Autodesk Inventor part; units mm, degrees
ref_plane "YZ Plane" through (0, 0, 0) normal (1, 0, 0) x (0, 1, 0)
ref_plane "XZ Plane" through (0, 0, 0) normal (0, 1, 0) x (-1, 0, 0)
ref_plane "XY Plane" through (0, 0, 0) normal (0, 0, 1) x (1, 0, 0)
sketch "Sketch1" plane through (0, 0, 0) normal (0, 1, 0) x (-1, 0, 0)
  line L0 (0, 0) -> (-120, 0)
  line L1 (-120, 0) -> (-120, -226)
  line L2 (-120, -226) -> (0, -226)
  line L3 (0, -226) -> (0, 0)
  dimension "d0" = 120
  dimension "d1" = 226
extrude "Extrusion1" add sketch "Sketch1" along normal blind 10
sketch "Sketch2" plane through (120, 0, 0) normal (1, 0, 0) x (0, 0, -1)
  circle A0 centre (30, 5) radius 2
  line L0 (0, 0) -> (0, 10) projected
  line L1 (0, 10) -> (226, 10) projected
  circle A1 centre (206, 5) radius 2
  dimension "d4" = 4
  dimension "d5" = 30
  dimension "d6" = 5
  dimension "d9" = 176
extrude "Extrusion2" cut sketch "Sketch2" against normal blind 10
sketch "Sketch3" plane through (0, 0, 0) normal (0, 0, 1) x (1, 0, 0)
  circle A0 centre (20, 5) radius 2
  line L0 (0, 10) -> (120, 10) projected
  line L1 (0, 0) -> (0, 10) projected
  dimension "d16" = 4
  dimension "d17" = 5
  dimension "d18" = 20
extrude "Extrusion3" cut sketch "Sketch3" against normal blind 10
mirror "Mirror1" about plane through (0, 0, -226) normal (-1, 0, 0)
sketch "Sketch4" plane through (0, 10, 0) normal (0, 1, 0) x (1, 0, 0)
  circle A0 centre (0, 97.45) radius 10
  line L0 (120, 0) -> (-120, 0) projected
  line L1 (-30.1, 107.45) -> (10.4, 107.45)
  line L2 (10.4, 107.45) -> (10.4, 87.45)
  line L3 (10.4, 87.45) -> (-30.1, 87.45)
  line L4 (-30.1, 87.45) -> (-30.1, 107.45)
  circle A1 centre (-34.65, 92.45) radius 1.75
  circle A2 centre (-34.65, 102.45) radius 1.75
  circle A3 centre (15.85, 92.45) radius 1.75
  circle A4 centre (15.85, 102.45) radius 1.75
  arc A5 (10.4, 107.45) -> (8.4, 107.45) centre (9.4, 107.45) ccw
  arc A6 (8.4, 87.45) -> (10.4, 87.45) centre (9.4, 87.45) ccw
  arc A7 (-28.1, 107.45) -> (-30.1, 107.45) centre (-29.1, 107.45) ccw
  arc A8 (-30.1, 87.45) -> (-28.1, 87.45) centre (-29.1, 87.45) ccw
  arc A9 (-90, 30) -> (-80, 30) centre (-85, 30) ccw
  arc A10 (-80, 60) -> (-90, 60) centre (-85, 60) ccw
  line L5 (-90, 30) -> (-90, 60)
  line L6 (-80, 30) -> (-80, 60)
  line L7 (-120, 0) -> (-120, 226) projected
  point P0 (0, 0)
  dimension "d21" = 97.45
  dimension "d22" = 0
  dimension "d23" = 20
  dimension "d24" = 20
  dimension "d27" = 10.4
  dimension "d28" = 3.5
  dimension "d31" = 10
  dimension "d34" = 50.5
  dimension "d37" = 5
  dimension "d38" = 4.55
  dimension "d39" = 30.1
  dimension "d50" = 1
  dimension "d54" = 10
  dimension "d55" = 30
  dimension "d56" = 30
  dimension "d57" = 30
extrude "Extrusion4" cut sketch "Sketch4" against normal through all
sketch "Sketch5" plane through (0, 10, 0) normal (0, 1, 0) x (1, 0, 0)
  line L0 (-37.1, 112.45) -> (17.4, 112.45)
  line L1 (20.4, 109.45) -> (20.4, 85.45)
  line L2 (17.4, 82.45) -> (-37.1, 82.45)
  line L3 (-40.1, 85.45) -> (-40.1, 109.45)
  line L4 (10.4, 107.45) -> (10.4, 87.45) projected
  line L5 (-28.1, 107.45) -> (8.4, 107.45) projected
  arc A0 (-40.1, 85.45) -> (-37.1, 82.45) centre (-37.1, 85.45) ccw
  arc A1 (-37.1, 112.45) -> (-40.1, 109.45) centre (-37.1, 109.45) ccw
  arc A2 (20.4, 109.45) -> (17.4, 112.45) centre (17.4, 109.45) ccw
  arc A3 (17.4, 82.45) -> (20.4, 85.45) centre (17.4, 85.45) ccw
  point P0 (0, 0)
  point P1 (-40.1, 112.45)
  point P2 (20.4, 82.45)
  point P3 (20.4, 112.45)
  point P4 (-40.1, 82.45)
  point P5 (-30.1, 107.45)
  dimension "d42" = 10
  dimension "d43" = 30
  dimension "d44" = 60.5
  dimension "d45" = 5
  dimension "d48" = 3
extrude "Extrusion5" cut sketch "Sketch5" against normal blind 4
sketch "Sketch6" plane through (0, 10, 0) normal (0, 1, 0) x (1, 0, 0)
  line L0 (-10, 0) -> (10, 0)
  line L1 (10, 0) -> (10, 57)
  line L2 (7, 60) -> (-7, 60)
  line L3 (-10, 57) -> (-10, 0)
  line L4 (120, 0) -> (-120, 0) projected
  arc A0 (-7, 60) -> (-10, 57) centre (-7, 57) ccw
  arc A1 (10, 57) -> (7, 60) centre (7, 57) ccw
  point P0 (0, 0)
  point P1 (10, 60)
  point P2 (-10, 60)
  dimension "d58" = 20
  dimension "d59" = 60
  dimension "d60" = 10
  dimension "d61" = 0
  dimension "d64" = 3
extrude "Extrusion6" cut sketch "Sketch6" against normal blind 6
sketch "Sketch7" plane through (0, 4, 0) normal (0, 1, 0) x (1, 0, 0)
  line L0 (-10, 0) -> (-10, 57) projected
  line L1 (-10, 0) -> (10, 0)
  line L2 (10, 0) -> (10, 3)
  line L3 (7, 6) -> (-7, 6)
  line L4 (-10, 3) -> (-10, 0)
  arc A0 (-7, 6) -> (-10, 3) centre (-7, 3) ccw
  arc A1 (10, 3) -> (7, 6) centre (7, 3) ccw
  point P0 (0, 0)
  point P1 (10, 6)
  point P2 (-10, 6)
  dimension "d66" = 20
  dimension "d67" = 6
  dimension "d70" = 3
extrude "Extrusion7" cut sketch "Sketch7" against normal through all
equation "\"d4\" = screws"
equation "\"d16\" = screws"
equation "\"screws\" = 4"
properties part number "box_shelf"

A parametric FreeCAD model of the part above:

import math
import FreeCAD as App
import Part
import Sketcher
Q = App.Units.Quantity


def add_polygon(sketch, points):
    """Adds a closed chain of lines whose ends are joined by coincident constraints."""
    first, n = sketch.GeometryCount, len(points)
    for a, b in zip(points, points[1:] + points[:1]):
        sketch.addGeometry(Part.LineSegment(App.Vector(*a, 0), App.Vector(*b, 0)), False)
    for i in range(n):
        sketch.addConstraint(Sketcher.Constraint("Coincident", first + i, 2, first + (i + 1) % n, 1))

doc = App.newDocument("Part")
body = doc.addObject("PartDesign::Body", "Body")

# Sketch on XZ plane
sketch1 = body.newObject("Sketcher::SketchObject", "Sketch")
sketch1.AttachmentSupport = (doc.getObject("XZ_Plane"), [""])
sketch1.MapMode = "FlatFace"
add_polygon(sketch1, [(0, -226), (0, 0), (120, 0), (120, -226)])  # lines 0-3
sketch1.addConstraint([
    Sketcher.Constraint("Vertical", 0),
    Sketcher.Constraint("Horizontal", 1),
    Sketcher.Constraint("Vertical", 2),
    Sketcher.Constraint("Horizontal", 3),
    Sketcher.Constraint("Coincident", 0, 2, -1, 1),
    Sketcher.Constraint("DistanceX", 1, 1, 1, 2, Q("120 mm")),
    Sketcher.Constraint("DistanceY", 0, 1, 0, 2, Q("226 mm")),
])
pad1 = body.newObject("PartDesign::Pad", "Pad")
pad1.Profile = sketch1
pad1.Length = 10
pad1.Reversed = True

# Sketch on YZ plane
sketch2 = body.newObject("Sketcher::SketchObject", "Sketch001")
sketch2.AttachmentSupport = (doc.getObject("YZ_Plane"), [""])
sketch2.MapMode = "FlatFace"
sketch2.AttachmentOffset = App.Placement(App.Vector(0, 0, 120), App.Rotation())
sketch2.addGeometry([
    Part.Circle(App.Vector(5, -30, 0), App.Vector(0, 0, 1), 2),
    Part.Circle(App.Vector(5, -206, 0), App.Vector(0, 0, 1), 2),
], False)
sketch2.addConstraint([
    Sketcher.Constraint("Equal", 0, 1),
    Sketcher.Constraint("Vertical", 0, 3, 1, 3),
    Sketcher.Constraint("Diameter", 0, Q("4 mm")),
    Sketcher.Constraint("DistanceX", -1, 1, 0, 3, Q("5 mm")),
    Sketcher.Constraint("DistanceY", 0, 3, -1, 1, Q("30 mm")),
    Sketcher.Constraint("DistanceY", 1, 3, 0, 3, Q("176 mm")),
])
pocket1 = body.newObject("PartDesign::Pocket", "Pocket")
pocket1.Profile = sketch2
pocket1.Length = 10

# Sketch on XY plane
sketch3 = body.newObject("Sketcher::SketchObject", "Sketch002")
sketch3.AttachmentSupport = (doc.getObject("XY_Plane"), [""])
sketch3.MapMode = "FlatFace"
sketch3.addGeometry(Part.Circle(App.Vector(20, 5, 0), App.Vector(0, 0, 1), 2), False)
sketch3.addConstraint([
    Sketcher.Constraint("Diameter", 0, Q("4 mm")),
    Sketcher.Constraint("DistanceX", -1, 1, 0, 3, Q("20 mm")),
    Sketcher.Constraint("DistanceY", -1, 1, 0, 3, Q("5 mm")),
])
pocket2 = body.newObject("PartDesign::Pocket", "Pocket001")
pocket2.Profile = sketch3
pocket2.Length = 10
doc.recompute()

mirrored = body.newObject("PartDesign::Mirrored", "Mirrored")
mirrored.TransformMode = "Transform body"
mirrored.MirrorPlane = (doc.getObject("YZ_Plane"), [""])
body.Tip = mirrored

# Sketch on XZ plane
sketch4 = body.newObject("Sketcher::SketchObject", "Sketch003")
sketch4.AttachmentSupport = (doc.getObject("XZ_Plane"), [""])
sketch4.MapMode = "FlatFace"
sketch4.AttachmentOffset = App.Placement(App.Vector(0, 0, -10), App.Rotation())
sketch4.addGeometry([
    Part.ArcOfCircle(Part.Circle(App.Vector(9.4, -87.5, 0), App.Vector(0, 0, 1), 1), math.radians(0), math.radians(180)),  # 0
    Part.LineSegment(App.Vector(10.4, -87.5, 0), App.Vector(10.4, -107.5, 0)),  # 1
    Part.ArcOfCircle(Part.Circle(App.Vector(9.4, -107.5, 0), App.Vector(0, 0, 1), 1), math.radians(180), math.radians(360)),  # 2
    Part.LineSegment(App.Vector(8.4, -107.5, 0), App.Vector(-28.1, -107.5, 0)),  # 3
    Part.ArcOfCircle(Part.Circle(App.Vector(-29.1, -107.5, 0), App.Vector(0, 0, 1), 1), math.radians(180), math.radians(360)),  # 4
    Part.LineSegment(App.Vector(-30.1, -107.5, 0), App.Vector(-30.1, -87.5, 0)),  # 5
    Part.ArcOfCircle(Part.Circle(App.Vector(-29.1, -87.5, 0), App.Vector(0, 0, 1), 1), math.radians(0), math.radians(180)),  # 6
    Part.LineSegment(App.Vector(-28.1, -87.5, 0), App.Vector(8.4, -87.5, 0)),  # 7
    Part.Circle(App.Vector(-34.6, -92.5, 0), App.Vector(0, 0, 1), 1.8),  # 8
    Part.Circle(App.Vector(-34.6, -102.5, 0), App.Vector(0, 0, 1), 1.8),  # 9
    Part.Circle(App.Vector(15.8, -92.5, 0), App.Vector(0, 0, 1), 1.8),  # 10
    Part.Circle(App.Vector(15.8, -102.5, 0), App.Vector(0, 0, 1), 1.8),  # 11
    Part.LineSegment(App.Vector(-90, -60, 0), App.Vector(-90, -30, 0)),  # 12
    Part.ArcOfCircle(Part.Circle(App.Vector(-85, -30, 0), App.Vector(0, 0, 1), 5), math.radians(0), math.radians(180)),  # 13
    Part.LineSegment(App.Vector(-80, -30, 0), App.Vector(-80, -60, 0)),  # 14
    Part.ArcOfCircle(Part.Circle(App.Vector(-85, -60, 0), App.Vector(0, 0, 1), 5), math.radians(180), math.radians(360)),  # 15
], False)
sketch4.addConstraint([
    Sketcher.Constraint("Tangent", 0, 1, 1, 1),
    Sketcher.Constraint("Tangent", 1, 2, 2, 2),
    Sketcher.Constraint("Coincident", 2, 1, 3, 1),
    Sketcher.Constraint("Coincident", 3, 2, 4, 2),
    Sketcher.Constraint("Tangent", 4, 1, 5, 1),
    Sketcher.Constraint("Tangent", 5, 2, 6, 2),
    Sketcher.Constraint("Coincident", 6, 1, 7, 1),
    Sketcher.Constraint("Coincident", 7, 2, 0, 2),
    Sketcher.Constraint("Tangent", 12, 2, 13, 2),
    Sketcher.Constraint("Tangent", 13, 1, 14, 1),
    Sketcher.Constraint("Tangent", 14, 2, 15, 2),
    Sketcher.Constraint("Tangent", 15, 1, 12, 1),
    Sketcher.Constraint("Vertical", 1),
    Sketcher.Constraint("Horizontal", 3),
    Sketcher.Constraint("Vertical", 5),
    Sketcher.Constraint("Horizontal", 7),
    Sketcher.Constraint("Vertical", 12),
    Sketcher.Constraint("Vertical", 14),
    Sketcher.Constraint("Equal", 0, 2),
    Sketcher.Constraint("Equal", 2, 4),
    Sketcher.Constraint("Equal", 4, 6),
    Sketcher.Constraint("Equal", 8, 9),
    Sketcher.Constraint("Equal", 9, 10),
    Sketcher.Constraint("Equal", 10, 11),
    Sketcher.Constraint("Horizontal", 2, 3, 4, 3),
    Sketcher.Constraint("Horizontal", 0, 3, 6, 3),
    Sketcher.Constraint("Horizontal", 8, 3, 10, 3),
    Sketcher.Constraint("Horizontal", 9, 3, 11, 3),
    Sketcher.Constraint("Horizontal", 1, 2, 2, 1),
    Sketcher.Constraint("Horizontal", 5, 2, 6, 1),
    Sketcher.Constraint("Vertical", 8, 3, 9, 3),
    Sketcher.Constraint("Vertical", 10, 3, 11, 3),
    Sketcher.Constraint("Radius", 0, Q("1 mm")),
    Sketcher.Constraint("Radius", 13, Q("5 mm")),
    Sketcher.Constraint("Diameter", 8, Q("3.5 mm")),
    Sketcher.Constraint("DistanceY", 1, 2, 1, 1, Q("20 mm")),
    Sketcher.Constraint("DistanceY", 12, 1, 12, 2, Q("30 mm")),
    Sketcher.Constraint("DistanceY", 13, 3, -1, 1, Q("30 mm")),
    Sketcher.Constraint("DistanceY", 8, 3, 6, 3, Q("5 mm")),
    Sketcher.Constraint("DistanceY", 4, 3, 9, 3, Q("5 mm")),
    Sketcher.Constraint("DistanceX", -1, 1, 0, 1, Q("10.4 mm")),
    Sketcher.Constraint("DistanceX", 4, 1, -1, 1, Q("30.1 mm")),
    Sketcher.Constraint("DistanceX", 8, 3, 10, 3, Q("50.5 mm")),
    Sketcher.Constraint("DistanceX", 9, 3, 4, 1, Q("4.55 mm")),
    Sketcher.Constraint("DistanceX", 13, 3, -1, 1, Q("85 mm")),
    Sketcher.Constraint("DistanceY", 0, 3, -1, 1, Q("87.45 mm")),
])
pocket3 = body.newObject("PartDesign::Pocket", "Pocket002")
pocket3.Profile = sketch4
pocket3.Type = "ThroughAll"
pocket3.Reversed = True

# Sketch on XZ plane
sketch5 = body.newObject("Sketcher::SketchObject", "Sketch004")
sketch5.AttachmentSupport = (doc.getObject("XZ_Plane"), [""])
sketch5.MapMode = "FlatFace"
sketch5.AttachmentOffset = App.Placement(App.Vector(0, 0, -10), App.Rotation())
sketch5.addGeometry([
    Part.LineSegment(App.Vector(17.4, -112.5, 0), App.Vector(-37.1, -112.5, 0)),  # 0
    Part.ArcOfCircle(Part.Circle(App.Vector(-37.1, -109.5, 0), App.Vector(0, 0, 1), 3), math.radians(180), math.radians(270)),  # 1
    Part.LineSegment(App.Vector(-40.1, -109.5, 0), App.Vector(-40.1, -85.5, 0)),  # 2
    Part.ArcOfCircle(Part.Circle(App.Vector(-37.1, -85.5, 0), App.Vector(0, 0, 1), 3), math.radians(90), math.radians(180)),  # 3
    Part.LineSegment(App.Vector(-37.1, -82.5, 0), App.Vector(17.4, -82.5, 0)),  # 4
    Part.ArcOfCircle(Part.Circle(App.Vector(17.4, -85.5, 0), App.Vector(0, 0, 1), 3), math.radians(0), math.radians(90)),  # 5
    Part.LineSegment(App.Vector(20.4, -85.5, 0), App.Vector(20.4, -109.5, 0)),  # 6
    Part.ArcOfCircle(Part.Circle(App.Vector(17.4, -109.5, 0), App.Vector(0, 0, 1), 3), math.radians(-90), math.radians(0)),  # 7
], False)
sketch5.addConstraint([
    Sketcher.Constraint("Tangent", 0, 2, 1, 2),
    Sketcher.Constraint("Tangent", 1, 1, 2, 1),
    Sketcher.Constraint("Tangent", 2, 2, 3, 2),
    Sketcher.Constraint("Tangent", 3, 1, 4, 1),
    Sketcher.Constraint("Tangent", 4, 2, 5, 2),
    Sketcher.Constraint("Tangent", 5, 1, 6, 1),
    Sketcher.Constraint("Tangent", 6, 2, 7, 2),
    Sketcher.Constraint("Tangent", 7, 1, 0, 1),
    Sketcher.Constraint("Horizontal", 0),
    Sketcher.Constraint("Vertical", 2),
    Sketcher.Constraint("Horizontal", 4),
    Sketcher.Constraint("Vertical", 6),
    Sketcher.Constraint("Equal", 1, 3),
    Sketcher.Constraint("Equal", 3, 5),
    Sketcher.Constraint("Equal", 5, 7),
    Sketcher.Constraint("Radius", 1, Q("3 mm")),
    Sketcher.Constraint("DistanceY", 0, 2, 3, 1, Q("30 mm")),
    Sketcher.Constraint("DistanceX", 0, 2, 0, 1, Q("54.5 mm")),
    Sketcher.Constraint("DistanceX", 1, 3, -1, 1, Q("37.1 mm")),
    Sketcher.Constraint("DistanceY", 1, 3, -1, 1, Q("109.45 mm")),
])
pocket4 = body.newObject("PartDesign::Pocket", "Pocket003")
pocket4.Profile = sketch5
pocket4.Length = 4
pocket4.Reversed = True

# Sketch on XZ plane
sketch6 = body.newObject("Sketcher::SketchObject", "Sketch005")
sketch6.AttachmentSupport = (doc.getObject("XZ_Plane"), [""])
sketch6.MapMode = "FlatFace"
sketch6.AttachmentOffset = App.Placement(App.Vector(0, 0, -10), App.Rotation())
sketch6.addGeometry([
    Part.LineSegment(App.Vector(-10, -57, 0), App.Vector(-10, 0, 0)),  # 0
    Part.LineSegment(App.Vector(-10, 0, 0), App.Vector(10, 0, 0)),  # 1
    Part.LineSegment(App.Vector(10, 0, 0), App.Vector(10, -57, 0)),  # 2
    Part.ArcOfCircle(Part.Circle(App.Vector(7, -57, 0), App.Vector(0, 0, 1), 3), math.radians(-90), math.radians(0)),  # 3
    Part.LineSegment(App.Vector(7, -60, 0), App.Vector(-7, -60, 0)),  # 4
    Part.ArcOfCircle(Part.Circle(App.Vector(-7, -57, 0), App.Vector(0, 0, 1), 3), math.radians(180), math.radians(270)),  # 5
], False)
sketch6.addConstraint([
    Sketcher.Constraint("Coincident", 0, 2, 1, 1),
    Sketcher.Constraint("Coincident", 1, 2, 2, 1),
    Sketcher.Constraint("Tangent", 2, 2, 3, 2),
    Sketcher.Constraint("Tangent", 3, 1, 4, 1),
    Sketcher.Constraint("Tangent", 4, 2, 5, 2),
    Sketcher.Constraint("Tangent", 5, 1, 0, 1),
    Sketcher.Constraint("Vertical", 0),
    Sketcher.Constraint("Horizontal", 1),
    Sketcher.Constraint("Vertical", 2),
    Sketcher.Constraint("Horizontal", 4),
    Sketcher.Constraint("Equal", 3, 5),
    Sketcher.Constraint("Symmetric", 0, 2, 1, 2, -1, 1),
    Sketcher.Constraint("Radius", 3, Q("3 mm")),
    Sketcher.Constraint("DistanceX", 1, 1, 1, 2, Q("20 mm")),
    Sketcher.Constraint("DistanceY", 3, 1, -1, 1, Q("60 mm")),
])
pocket5 = body.newObject("PartDesign::Pocket", "Pocket004")
pocket5.Profile = sketch6
pocket5.Length = 6
pocket5.Reversed = True

# Sketch on XZ plane
sketch7 = body.newObject("Sketcher::SketchObject", "Sketch006")
sketch7.AttachmentSupport = (doc.getObject("XZ_Plane"), [""])
sketch7.MapMode = "FlatFace"
sketch7.AttachmentOffset = App.Placement(App.Vector(0, 0, -4), App.Rotation())
sketch7.addGeometry([
    Part.LineSegment(App.Vector(-10, -3, 0), App.Vector(-10, 0, 0)),  # 0
    Part.LineSegment(App.Vector(-10, 0, 0), App.Vector(10, 0, 0)),  # 1
    Part.LineSegment(App.Vector(10, 0, 0), App.Vector(10, -3, 0)),  # 2
    Part.ArcOfCircle(Part.Circle(App.Vector(7, -3, 0), App.Vector(0, 0, 1), 3), math.radians(-90), math.radians(0)),  # 3
    Part.LineSegment(App.Vector(7, -6, 0), App.Vector(-7, -6, 0)),  # 4
    Part.ArcOfCircle(Part.Circle(App.Vector(-7, -3, 0), App.Vector(0, 0, 1), 3), math.radians(180), math.radians(270)),  # 5
], False)
sketch7.addConstraint([
    Sketcher.Constraint("Coincident", 0, 2, 1, 1),
    Sketcher.Constraint("Coincident", 1, 2, 2, 1),
    Sketcher.Constraint("Tangent", 2, 2, 3, 2),
    Sketcher.Constraint("Tangent", 3, 1, 4, 1),
    Sketcher.Constraint("Tangent", 4, 2, 5, 2),
    Sketcher.Constraint("Tangent", 5, 1, 0, 1),
    Sketcher.Constraint("Vertical", 0),
    Sketcher.Constraint("Horizontal", 1),
    Sketcher.Constraint("Vertical", 2),
    Sketcher.Constraint("Horizontal", 4),
    Sketcher.Constraint("Equal", 3, 5),
    Sketcher.Constraint("Symmetric", 0, 2, 1, 2, -1, 1),
    Sketcher.Constraint("Radius", 3, Q("3 mm")),
    Sketcher.Constraint("DistanceX", 1, 1, 1, 2, Q("20 mm")),
    Sketcher.Constraint("DistanceY", 0, 1, 0, 2, Q("3 mm")),
])
pocket6 = body.newObject("PartDesign::Pocket", "Pocket005")
pocket6.Profile = sketch7
pocket6.Type = "ThroughAll"
pocket6.Reversed = True

doc.recompute()
